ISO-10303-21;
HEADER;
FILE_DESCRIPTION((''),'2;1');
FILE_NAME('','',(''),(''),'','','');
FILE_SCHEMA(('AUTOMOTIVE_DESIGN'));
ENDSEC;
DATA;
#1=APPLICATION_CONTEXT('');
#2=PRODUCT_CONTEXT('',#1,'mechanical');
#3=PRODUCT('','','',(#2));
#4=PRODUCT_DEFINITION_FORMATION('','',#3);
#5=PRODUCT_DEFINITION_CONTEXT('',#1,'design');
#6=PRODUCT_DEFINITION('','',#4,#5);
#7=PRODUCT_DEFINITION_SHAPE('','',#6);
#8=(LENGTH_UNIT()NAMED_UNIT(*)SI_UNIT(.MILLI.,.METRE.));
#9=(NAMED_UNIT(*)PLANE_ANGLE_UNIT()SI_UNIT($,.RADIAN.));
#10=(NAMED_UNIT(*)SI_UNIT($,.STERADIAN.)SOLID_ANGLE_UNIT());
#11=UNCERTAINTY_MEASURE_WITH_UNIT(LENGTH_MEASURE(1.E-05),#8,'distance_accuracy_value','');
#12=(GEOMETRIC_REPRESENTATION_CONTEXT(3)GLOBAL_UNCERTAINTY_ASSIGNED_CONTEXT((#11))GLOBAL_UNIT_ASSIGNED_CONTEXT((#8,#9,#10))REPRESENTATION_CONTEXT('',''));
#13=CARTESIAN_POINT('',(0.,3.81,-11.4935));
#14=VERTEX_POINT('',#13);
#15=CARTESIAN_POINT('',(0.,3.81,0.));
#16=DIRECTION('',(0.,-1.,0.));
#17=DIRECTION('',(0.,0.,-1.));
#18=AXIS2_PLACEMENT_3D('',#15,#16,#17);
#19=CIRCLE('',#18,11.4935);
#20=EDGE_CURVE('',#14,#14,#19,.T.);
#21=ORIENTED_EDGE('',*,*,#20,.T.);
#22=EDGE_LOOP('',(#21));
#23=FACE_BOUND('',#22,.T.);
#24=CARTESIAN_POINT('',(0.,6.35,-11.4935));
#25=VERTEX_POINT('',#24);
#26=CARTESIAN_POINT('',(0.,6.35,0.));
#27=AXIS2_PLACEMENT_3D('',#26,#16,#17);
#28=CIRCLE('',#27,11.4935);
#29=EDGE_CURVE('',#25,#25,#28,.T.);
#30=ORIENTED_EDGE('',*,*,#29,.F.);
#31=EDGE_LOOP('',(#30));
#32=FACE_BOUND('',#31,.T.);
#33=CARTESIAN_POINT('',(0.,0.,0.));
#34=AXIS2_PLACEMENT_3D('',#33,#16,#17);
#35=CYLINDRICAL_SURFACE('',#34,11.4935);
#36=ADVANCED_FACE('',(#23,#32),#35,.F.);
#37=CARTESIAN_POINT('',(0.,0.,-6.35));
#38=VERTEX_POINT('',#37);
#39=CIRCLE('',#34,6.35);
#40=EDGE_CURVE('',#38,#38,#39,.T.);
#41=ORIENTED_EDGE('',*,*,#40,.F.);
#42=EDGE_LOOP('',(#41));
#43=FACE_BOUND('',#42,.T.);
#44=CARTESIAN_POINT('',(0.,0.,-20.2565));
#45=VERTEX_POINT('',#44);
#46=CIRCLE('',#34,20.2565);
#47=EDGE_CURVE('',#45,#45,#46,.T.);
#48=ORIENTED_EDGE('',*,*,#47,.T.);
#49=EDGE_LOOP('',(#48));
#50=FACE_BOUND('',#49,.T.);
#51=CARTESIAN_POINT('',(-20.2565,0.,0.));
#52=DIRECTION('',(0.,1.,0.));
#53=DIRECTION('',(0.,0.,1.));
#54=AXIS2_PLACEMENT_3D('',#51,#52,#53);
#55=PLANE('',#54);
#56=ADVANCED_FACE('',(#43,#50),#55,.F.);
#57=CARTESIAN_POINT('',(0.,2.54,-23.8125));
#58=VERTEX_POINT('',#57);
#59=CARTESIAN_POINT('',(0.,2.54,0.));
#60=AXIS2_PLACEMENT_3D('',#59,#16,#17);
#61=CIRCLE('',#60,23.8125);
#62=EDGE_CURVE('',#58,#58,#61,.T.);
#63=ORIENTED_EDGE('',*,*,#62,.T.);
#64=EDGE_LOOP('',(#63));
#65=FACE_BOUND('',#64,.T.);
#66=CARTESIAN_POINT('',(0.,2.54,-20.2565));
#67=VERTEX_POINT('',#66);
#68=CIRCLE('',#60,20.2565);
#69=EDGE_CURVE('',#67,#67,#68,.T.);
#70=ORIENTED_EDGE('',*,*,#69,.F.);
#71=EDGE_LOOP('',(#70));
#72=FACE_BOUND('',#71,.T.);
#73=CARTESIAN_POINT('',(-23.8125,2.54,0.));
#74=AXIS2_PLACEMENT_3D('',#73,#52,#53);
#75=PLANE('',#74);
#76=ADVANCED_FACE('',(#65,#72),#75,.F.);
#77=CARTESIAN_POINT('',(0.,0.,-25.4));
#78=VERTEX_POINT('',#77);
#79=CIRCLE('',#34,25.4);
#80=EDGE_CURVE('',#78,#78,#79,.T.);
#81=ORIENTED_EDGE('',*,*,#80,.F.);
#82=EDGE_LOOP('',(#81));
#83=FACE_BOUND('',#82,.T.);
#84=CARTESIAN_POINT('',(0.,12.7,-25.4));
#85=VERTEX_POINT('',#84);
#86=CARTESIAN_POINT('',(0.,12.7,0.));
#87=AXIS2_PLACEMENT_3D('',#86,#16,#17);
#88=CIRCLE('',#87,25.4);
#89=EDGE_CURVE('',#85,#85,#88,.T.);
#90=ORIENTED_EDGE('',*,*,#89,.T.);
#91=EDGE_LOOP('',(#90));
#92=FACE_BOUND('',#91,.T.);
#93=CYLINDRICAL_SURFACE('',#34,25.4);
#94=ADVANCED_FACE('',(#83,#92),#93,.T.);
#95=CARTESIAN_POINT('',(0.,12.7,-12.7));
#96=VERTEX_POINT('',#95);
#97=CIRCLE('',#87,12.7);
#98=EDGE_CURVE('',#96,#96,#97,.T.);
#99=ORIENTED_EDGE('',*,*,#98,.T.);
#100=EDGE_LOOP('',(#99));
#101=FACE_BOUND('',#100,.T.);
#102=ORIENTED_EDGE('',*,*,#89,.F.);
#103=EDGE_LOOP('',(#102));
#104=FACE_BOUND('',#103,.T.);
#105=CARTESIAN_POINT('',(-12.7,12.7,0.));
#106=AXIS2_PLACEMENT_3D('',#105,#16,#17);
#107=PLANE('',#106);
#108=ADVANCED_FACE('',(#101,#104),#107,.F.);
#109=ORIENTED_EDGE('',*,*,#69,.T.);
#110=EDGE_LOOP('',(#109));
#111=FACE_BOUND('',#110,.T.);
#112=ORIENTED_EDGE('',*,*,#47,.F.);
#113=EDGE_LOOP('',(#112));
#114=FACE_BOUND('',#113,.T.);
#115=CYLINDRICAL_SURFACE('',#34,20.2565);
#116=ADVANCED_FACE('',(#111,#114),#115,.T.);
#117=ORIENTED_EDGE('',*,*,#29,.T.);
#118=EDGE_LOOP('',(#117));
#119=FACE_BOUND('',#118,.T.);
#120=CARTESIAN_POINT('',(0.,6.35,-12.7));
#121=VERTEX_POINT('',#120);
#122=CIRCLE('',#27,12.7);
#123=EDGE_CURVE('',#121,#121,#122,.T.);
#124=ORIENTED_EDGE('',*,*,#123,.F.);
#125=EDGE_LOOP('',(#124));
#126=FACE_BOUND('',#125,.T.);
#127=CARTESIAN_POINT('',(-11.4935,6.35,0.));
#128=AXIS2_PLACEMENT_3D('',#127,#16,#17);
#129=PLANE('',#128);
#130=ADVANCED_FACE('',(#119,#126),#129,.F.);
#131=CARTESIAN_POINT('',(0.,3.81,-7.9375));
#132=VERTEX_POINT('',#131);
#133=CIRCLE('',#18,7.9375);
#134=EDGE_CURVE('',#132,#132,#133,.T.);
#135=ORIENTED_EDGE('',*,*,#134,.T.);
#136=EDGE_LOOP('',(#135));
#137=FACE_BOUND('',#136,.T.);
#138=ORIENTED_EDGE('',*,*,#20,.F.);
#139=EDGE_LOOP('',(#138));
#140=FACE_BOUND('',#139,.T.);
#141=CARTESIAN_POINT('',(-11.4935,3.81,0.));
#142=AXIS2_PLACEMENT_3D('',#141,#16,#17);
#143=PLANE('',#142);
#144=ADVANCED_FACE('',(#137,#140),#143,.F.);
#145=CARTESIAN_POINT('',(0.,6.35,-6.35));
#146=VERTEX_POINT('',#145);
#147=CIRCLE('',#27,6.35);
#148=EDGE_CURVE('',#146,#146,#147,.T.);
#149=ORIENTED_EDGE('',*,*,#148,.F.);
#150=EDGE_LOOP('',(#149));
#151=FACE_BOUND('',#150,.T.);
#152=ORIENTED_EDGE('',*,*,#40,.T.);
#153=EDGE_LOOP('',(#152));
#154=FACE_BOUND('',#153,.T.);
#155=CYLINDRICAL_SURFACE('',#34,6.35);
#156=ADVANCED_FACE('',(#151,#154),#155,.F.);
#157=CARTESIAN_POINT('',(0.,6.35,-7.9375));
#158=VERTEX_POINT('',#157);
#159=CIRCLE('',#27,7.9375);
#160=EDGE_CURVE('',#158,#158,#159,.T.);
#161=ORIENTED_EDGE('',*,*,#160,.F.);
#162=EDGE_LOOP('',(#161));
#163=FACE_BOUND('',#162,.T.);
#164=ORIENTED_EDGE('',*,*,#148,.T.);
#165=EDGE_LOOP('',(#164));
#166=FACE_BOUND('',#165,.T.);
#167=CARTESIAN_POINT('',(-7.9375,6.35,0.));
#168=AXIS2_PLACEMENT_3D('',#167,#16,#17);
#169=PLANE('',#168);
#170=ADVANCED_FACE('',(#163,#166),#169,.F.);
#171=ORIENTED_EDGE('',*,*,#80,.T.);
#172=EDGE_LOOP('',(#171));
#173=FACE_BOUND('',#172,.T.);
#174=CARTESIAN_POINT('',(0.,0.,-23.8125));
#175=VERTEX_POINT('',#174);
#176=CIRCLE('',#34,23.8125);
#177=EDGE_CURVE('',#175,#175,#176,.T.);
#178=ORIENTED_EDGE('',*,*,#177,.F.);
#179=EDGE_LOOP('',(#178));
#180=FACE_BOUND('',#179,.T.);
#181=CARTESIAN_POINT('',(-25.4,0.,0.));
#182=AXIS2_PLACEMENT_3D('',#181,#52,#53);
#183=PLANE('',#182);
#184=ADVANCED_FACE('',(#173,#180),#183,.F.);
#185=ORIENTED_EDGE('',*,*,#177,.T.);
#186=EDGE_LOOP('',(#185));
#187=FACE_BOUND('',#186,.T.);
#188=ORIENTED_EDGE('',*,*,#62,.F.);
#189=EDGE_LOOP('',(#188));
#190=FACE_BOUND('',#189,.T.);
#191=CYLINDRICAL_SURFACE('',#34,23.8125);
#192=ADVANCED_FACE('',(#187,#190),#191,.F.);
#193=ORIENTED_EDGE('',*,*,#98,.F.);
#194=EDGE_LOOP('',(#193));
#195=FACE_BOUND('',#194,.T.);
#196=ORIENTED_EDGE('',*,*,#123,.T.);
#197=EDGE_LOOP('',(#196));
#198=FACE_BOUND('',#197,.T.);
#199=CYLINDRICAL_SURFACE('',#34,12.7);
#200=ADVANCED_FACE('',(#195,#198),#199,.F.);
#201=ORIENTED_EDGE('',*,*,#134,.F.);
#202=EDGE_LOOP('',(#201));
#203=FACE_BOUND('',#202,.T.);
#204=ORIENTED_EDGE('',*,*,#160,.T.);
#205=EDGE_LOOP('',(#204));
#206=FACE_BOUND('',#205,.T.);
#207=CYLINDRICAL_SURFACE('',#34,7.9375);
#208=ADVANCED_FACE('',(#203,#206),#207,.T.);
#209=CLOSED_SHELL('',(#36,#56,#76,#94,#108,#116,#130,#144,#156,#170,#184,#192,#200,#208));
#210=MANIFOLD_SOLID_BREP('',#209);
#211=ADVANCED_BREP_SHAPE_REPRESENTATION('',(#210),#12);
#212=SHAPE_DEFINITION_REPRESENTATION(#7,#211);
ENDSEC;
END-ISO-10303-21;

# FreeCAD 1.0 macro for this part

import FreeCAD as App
import Part
import Sketcher
Q = App.Units.Quantity


def add_polygon(sketch, points):
    """Adds a closed chain of lines whose ends are joined by coincident constraints."""
    first, n = sketch.GeometryCount, len(points)
    for a, b in zip(points, points[1:] + points[:1]):
        sketch.addGeometry(Part.LineSegment(App.Vector(*a, 0), App.Vector(*b, 0)), False)
    for i in range(n):
        sketch.addConstraint(Sketcher.Constraint("Coincident", first + i, 2, first + (i + 1) % n, 1))

doc = App.newDocument("Part")
body = doc.addObject("PartDesign::Body", "Body")

# Sketch on XY plane
sketch1 = body.newObject("Sketcher::SketchObject", "Sketch")
sketch1.AttachmentSupport = (doc.getObject("XY_Plane"), [""])
sketch1.MapMode = "FlatFace"
add_polygon(sketch1, [(-6.3, 0), (-6.3, 6.3), (-7.9, 6.3), (-7.9, 3.8), (-11.5, 3.8), (-11.5, 6.3), (-12.7, 6.3), (-12.7, 12.7), (-25.4, 12.7), (-25.4, 0), (-23.8, 0), (-23.8, 2.5), (-20.3, 2.5), (-20.3, 0)])  # lines 0-13
sketch1.addConstraint([
    Sketcher.Constraint("Vertical", 0),
    Sketcher.Constraint("Horizontal", 1),
    Sketcher.Constraint("Vertical", 2),
    Sketcher.Constraint("Horizontal", 3),
    Sketcher.Constraint("Vertical", 4),
    Sketcher.Constraint("Horizontal", 5),
    Sketcher.Constraint("Vertical", 6),
    Sketcher.Constraint("Horizontal", 7),
    Sketcher.Constraint("Vertical", 8),
    Sketcher.Constraint("Horizontal", 9),
    Sketcher.Constraint("Vertical", 10),
    Sketcher.Constraint("Horizontal", 11),
    Sketcher.Constraint("Vertical", 12),
    Sketcher.Constraint("Horizontal", 13),
    Sketcher.Constraint("PointOnObject", 8, 2, -1),
    Sketcher.Constraint("PointOnObject", 12, 2, -1),
    Sketcher.Constraint("Horizontal", 1, 2, 4, 2),
    Sketcher.Constraint("Equal", 1, 9),
    Sketcher.Constraint("Equal", 3, 11),
    Sketcher.Constraint("Equal", 0, 6),
    Sketcher.Constraint("Equal", 7, 8),
    Sketcher.Constraint("Equal", 4, 10),
    Sketcher.Constraint("DistanceX", 7, 2, 7, 1, Q("0.5 in")),
    Sketcher.Constraint("DistanceY", 2, 2, 2, 1, Q("0.1 in")),
    Sketcher.Constraint("DistanceX", 7, 2, -1, 1, Q("1 in")),
    Sketcher.Constraint("DistanceX", 3, 2, 3, 1, Q("0.14 in")),
    Sketcher.Constraint("DistanceX", 1, 2, 1, 1, Q("0.0625 in")),
    Sketcher.Constraint("DistanceX", 0, 2, -1, 1, Q("0.25 in")),
])
revolution = body.newObject("PartDesign::Revolution", "Revolution")
revolution.Profile = sketch1
revolution.ReferenceAxis = (sketch1, ["V_Axis"])
revolution.Angle = 360

doc.recompute()
